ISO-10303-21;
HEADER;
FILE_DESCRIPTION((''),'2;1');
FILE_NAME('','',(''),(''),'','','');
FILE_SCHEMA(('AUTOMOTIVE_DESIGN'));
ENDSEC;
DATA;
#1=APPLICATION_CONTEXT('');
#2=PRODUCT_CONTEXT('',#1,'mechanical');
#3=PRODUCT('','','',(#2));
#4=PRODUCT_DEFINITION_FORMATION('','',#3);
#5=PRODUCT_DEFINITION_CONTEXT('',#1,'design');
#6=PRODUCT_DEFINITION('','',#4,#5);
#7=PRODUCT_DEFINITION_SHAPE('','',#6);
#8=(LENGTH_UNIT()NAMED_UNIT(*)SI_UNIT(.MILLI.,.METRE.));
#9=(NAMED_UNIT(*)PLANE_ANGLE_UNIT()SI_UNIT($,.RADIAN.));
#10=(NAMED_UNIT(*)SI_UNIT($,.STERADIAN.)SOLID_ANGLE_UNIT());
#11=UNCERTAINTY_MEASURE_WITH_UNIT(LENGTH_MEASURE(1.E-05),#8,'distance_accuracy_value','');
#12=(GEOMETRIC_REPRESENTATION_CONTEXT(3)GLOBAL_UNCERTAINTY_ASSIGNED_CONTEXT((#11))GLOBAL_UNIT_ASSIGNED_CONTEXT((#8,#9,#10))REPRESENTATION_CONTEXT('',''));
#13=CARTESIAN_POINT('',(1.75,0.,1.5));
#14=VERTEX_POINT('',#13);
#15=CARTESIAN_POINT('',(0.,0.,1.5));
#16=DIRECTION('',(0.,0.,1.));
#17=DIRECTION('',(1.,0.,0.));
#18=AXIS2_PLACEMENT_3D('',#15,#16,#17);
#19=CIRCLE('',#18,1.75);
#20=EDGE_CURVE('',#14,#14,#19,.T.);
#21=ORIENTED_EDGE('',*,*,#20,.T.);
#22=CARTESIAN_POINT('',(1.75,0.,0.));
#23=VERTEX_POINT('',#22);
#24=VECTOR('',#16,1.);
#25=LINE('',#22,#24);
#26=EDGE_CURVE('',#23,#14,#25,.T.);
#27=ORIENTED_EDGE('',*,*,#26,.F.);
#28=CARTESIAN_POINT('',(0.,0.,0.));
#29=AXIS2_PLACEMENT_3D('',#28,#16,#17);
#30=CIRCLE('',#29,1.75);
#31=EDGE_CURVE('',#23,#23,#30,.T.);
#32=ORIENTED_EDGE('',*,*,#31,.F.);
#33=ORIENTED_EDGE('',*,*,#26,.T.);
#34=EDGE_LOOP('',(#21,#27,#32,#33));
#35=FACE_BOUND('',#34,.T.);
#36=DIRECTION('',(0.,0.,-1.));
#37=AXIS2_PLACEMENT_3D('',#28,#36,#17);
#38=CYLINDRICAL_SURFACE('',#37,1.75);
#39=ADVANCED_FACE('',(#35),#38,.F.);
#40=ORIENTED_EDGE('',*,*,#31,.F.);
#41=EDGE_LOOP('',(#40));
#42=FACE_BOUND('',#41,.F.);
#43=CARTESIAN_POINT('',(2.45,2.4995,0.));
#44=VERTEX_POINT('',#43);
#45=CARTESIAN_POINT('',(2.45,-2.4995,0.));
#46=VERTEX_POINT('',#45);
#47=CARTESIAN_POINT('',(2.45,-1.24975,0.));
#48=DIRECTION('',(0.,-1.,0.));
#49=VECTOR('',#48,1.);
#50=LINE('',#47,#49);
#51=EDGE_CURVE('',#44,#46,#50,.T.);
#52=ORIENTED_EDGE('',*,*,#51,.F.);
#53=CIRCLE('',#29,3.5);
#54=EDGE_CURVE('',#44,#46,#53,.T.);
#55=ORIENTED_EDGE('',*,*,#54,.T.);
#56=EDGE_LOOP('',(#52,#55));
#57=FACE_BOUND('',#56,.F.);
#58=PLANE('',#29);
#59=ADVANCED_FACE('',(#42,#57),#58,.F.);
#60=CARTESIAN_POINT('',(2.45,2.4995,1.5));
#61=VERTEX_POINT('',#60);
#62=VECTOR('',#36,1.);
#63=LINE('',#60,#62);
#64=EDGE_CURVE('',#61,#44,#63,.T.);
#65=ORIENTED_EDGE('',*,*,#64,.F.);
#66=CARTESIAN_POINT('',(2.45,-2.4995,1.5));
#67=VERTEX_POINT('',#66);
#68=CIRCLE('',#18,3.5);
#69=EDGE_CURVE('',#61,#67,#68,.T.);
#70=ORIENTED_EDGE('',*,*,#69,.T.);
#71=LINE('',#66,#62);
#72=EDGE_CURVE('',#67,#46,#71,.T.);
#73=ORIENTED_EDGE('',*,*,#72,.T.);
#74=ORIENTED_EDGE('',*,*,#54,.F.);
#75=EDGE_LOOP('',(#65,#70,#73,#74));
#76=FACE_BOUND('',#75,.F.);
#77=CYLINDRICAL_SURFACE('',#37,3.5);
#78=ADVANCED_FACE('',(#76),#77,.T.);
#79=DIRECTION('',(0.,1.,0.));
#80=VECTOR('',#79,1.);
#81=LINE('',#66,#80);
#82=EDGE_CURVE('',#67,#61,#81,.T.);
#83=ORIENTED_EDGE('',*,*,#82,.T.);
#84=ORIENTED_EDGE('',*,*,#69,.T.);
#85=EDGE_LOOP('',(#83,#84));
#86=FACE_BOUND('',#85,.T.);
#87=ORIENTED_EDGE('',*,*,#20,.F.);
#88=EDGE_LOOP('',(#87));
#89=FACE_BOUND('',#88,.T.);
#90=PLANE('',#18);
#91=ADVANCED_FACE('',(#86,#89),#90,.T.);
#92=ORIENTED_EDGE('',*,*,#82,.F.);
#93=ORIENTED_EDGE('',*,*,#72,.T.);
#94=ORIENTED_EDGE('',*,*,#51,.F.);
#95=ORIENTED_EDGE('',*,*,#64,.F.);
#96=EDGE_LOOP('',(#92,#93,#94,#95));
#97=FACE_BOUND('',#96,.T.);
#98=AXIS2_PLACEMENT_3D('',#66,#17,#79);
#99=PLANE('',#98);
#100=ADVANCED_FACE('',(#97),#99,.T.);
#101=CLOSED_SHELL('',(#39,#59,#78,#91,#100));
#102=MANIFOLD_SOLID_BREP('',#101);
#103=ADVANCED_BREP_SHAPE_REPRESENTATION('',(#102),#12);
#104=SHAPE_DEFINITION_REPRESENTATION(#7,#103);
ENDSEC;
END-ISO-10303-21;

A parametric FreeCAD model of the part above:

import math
import FreeCAD as App
import Part
import Sketcher

V = App.Vector
Q = App.Units.Quantity

doc = App.newDocument("Part")
body = doc.addObject("PartDesign::Body", "Body")

# Sketch on XY plane
sketch1 = body.newObject("Sketcher::SketchObject", "Sketch")
sketch1.AttachmentSupport = (doc.getObject("XY_Plane"), [""])
sketch1.MapMode = "FlatFace"
sketch1.addGeometry([
    Part.Circle(V(0, 0, 0), V(0, 0, 1), 3.5),
    Part.Circle(V(0, 0, 0), V(0, 0, 1), 1.8),
], False)
sketch1.addConstraint([
    Sketcher.Constraint("Coincident", 0, 3, -1, 1),
    Sketcher.Constraint("Coincident", 1, 3, -1, 1),
    Sketcher.Constraint("Diameter", 0, Q("7 mm")),
    Sketcher.Constraint("Diameter", 1, Q("3.5 mm")),
])
pad1 = body.newObject("PartDesign::Pad", "Pad")
pad1.Profile = sketch1
pad1.Length = 1.5

# Sketch on XY plane
sketch2 = body.newObject("Sketcher::SketchObject", "Sketch001")
sketch2.AttachmentSupport = (doc.getObject("XY_Plane"), [""])
sketch2.MapMode = "FlatFace"
sketch2.AttachmentOffset = App.Placement(V(0, 0, 1.5), App.Rotation())
sketch2.addGeometry([
    Part.LineSegment(V(2.5, 2.5, 0), V(2.5, -2.5, 0)),
    Part.ArcOfCircle(Part.Circle(V(0, 0, 0), V(0, 0, 1), 3.5), math.radians(-46), math.radians(46)),
], False)
sketch2.addConstraint([
    Sketcher.Constraint("Coincident", 0, 1, 1, 2),
    Sketcher.Constraint("Coincident", 1, 1, 0, 2),
    Sketcher.Constraint("Vertical", 0),
    Sketcher.Constraint("Coincident", 1, 3, -1, 1),
    Sketcher.Constraint("Radius", 1, Q("3.5 mm")),
    Sketcher.Constraint("DistanceY", 0, 2, 0, 1, Q("4.999 mm")),
])
pocket1 = body.newObject("PartDesign::Pocket", "Pocket")
pocket1.Profile = sketch2
pocket1.Type = "UpToFirst"

doc.recompute()
